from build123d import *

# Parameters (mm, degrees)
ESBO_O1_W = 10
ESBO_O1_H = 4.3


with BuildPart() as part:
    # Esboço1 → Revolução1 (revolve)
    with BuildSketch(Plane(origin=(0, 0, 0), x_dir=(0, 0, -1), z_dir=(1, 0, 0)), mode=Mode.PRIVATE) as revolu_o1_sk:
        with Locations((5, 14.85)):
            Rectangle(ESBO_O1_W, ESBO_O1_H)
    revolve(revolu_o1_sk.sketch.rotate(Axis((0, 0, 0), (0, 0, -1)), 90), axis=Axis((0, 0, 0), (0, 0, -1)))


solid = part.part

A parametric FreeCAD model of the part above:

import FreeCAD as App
import Part
import Sketcher

doc = App.newDocument("Part")
body = doc.addObject("PartDesign::Body", "Body")

# Sketch on YZ plane
sketch1 = body.newObject("Sketcher::SketchObject", "Sketch")
sketch1.AttachmentSupport = (doc.getObject("YZ_Plane"), [""])
sketch1.MapMode = "FlatFace"
sketch1.addGeometry([
    Part.LineSegment(App.Vector(17, 0, 0), App.Vector(12.7, 0, 0)),
    Part.LineSegment(App.Vector(12.7, 0, 0), App.Vector(12.7, -10, 0)),
    Part.LineSegment(App.Vector(12.7, -10, 0), App.Vector(17, -10, 0)),
    Part.LineSegment(App.Vector(17, -10, 0), App.Vector(17, 0, 0)),
], False)
sketch1.addConstraint([
    Sketcher.Constraint("Coincident", 0, 2, 1, 1),
    Sketcher.Constraint("Coincident", 1, 2, 2, 1),
    Sketcher.Constraint("Coincident", 2, 2, 3, 1),
    Sketcher.Constraint("Coincident", 3, 2, 0, 1),
    Sketcher.Constraint("Horizontal", 0),
    Sketcher.Constraint("Vertical", 1),
    Sketcher.Constraint("Horizontal", 2),
    Sketcher.Constraint("Vertical", 3),
    Sketcher.Constraint("PointOnObject", 0, 2, -1),
    Sketcher.Constraint("DistanceY", 1, 2, 1, 1, 10.0),
    Sketcher.Constraint("DistanceX", 0, 2, 0, 1, 4.3),
    Sketcher.Constraint("DistanceX", -1, 1, 2, 2, 17.0),
])
revolution = body.newObject("PartDesign::Revolution", "Revolution")
revolution.Profile = sketch1
revolution.ReferenceAxis = (sketch1, ["V_Axis"])
revolution.Angle = 360

doc.recompute()
